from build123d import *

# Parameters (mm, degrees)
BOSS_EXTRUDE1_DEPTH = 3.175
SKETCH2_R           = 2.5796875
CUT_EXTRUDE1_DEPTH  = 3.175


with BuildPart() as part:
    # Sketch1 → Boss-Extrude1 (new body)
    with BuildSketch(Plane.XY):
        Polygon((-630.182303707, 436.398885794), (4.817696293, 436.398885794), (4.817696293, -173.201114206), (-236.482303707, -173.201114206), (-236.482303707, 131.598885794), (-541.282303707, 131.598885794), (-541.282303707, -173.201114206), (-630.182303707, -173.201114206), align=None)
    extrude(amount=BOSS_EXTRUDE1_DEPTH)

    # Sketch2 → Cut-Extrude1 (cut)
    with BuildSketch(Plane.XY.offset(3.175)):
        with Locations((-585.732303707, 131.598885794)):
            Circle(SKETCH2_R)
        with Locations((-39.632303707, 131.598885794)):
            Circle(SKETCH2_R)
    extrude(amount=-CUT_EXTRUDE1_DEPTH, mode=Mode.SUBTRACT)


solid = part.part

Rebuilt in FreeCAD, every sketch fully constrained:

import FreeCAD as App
import Part
import Sketcher

V = App.Vector
Q = App.Units.Quantity

doc = App.newDocument("Part")
body = doc.addObject("PartDesign::Body", "Body")

# Sketch on XY plane
sketch1 = body.newObject("Sketcher::SketchObject", "Sketch")
sketch1.AttachmentSupport = (doc.getObject("XY_Plane"), [""])
sketch1.MapMode = "FlatFace"
sketch1.addGeometry([
    Part.LineSegment(V(4.817696, 436.398886, 0), V(-630.182304, 436.398886, 0)),  # 0
    Part.LineSegment(V(-630.182304, 436.398886, 0), V(-630.182304, -173.201114, 0)),  # 1
    Part.LineSegment(V(-630.182304, -173.201114, 0), V(-541.282304, -173.201114, 0)),  # 2
    Part.LineSegment(V(-541.282304, -173.201114, 0), V(-541.282304, 131.598886, 0)),  # 3
    Part.LineSegment(V(-541.282304, 131.598886, 0), V(-236.482304, 131.598886, 0)),  # 4
    Part.LineSegment(V(-236.482304, 131.598886, 0), V(-236.482304, -173.201114, 0)),  # 5
    Part.LineSegment(V(-236.482304, -173.201114, 0), V(4.817696, -173.201114, 0)),  # 6
    Part.LineSegment(V(4.817696, -173.201114, 0), V(4.817696, 436.398886, 0)),  # 7
], False)
sketch1.addConstraint([
    Sketcher.Constraint("Coincident", 0, 2, 1, 1),
    Sketcher.Constraint("Coincident", 1, 2, 2, 1),
    Sketcher.Constraint("Coincident", 2, 2, 3, 1),
    Sketcher.Constraint("Coincident", 3, 2, 4, 1),
    Sketcher.Constraint("Coincident", 4, 2, 5, 1),
    Sketcher.Constraint("Coincident", 5, 2, 6, 1),
    Sketcher.Constraint("Coincident", 6, 2, 7, 1),
    Sketcher.Constraint("Coincident", 7, 2, 0, 1),
    Sketcher.Constraint("Horizontal", 0),
    Sketcher.Constraint("Vertical", 1),
    Sketcher.Constraint("Horizontal", 2),
    Sketcher.Constraint("Vertical", 3),
    Sketcher.Constraint("Horizontal", 4),
    Sketcher.Constraint("Vertical", 5),
    Sketcher.Constraint("Horizontal", 6),
    Sketcher.Constraint("Vertical", 7),
    Sketcher.Constraint("Horizontal", 2, 2, 5, 2),
    Sketcher.Constraint("Equal", 4, 3),
    Sketcher.Constraint("DistanceX", 0, 2, 0, 1, Q("25 in")),
    Sketcher.Constraint("DistanceX", 4, 1, 4, 2, Q("12 in")),
    Sketcher.Constraint("DistanceY", 1, 2, 1, 1, Q("24 in")),
    Sketcher.Constraint("DistanceX", 2, 1, 2, 2, Q("3.5 in")),
    Sketcher.Constraint("DistanceX", 0, 2, -1, 1, Q("630.182304 mm")),
    Sketcher.Constraint("DistanceY", -1, 1, 0, 2, Q("436.398886 mm")),
])
pad1 = body.newObject("PartDesign::Pad", "Pad")
pad1.Profile = sketch1
pad1.Length = Q("0.125 in")

# Sketch on XY plane
sketch2 = body.newObject("Sketcher::SketchObject", "Sketch001")
sketch2.AttachmentSupport = (doc.getObject("XY_Plane"), [""])
sketch2.MapMode = "FlatFace"
sketch2.AttachmentOffset = App.Placement(V(0, 0, 0.125 * 25.4), App.Rotation())
sketch2.addGeometry([
    Part.Circle(V(-585.732304, 131.598886, 0), V(0, 0, 1), 2.579687),
    Part.Circle(V(-39.632304, 131.598886, 0), V(0, 0, 1), 2.579687),
], False)
sketch2.addConstraint([
    Sketcher.Constraint("Equal", 0, 1),
    Sketcher.Constraint("Horizontal", 0, 3, 1, 3),
    Sketcher.Constraint("Diameter", 0, Q("0.203125 in")),
    Sketcher.Constraint("DistanceX", 0, 3, 1, 3, Q("21.5 in")),
    Sketcher.Constraint("DistanceX", 0, 3, -1, 1, Q("585.732304 mm")),
    Sketcher.Constraint("DistanceY", -1, 1, 0, 3, Q("131.598886 mm")),
])
pocket1 = body.newObject("PartDesign::Pocket", "Pocket")
pocket1.Profile = sketch2
pocket1.Length = Q("0.125 in")

doc.recompute()
